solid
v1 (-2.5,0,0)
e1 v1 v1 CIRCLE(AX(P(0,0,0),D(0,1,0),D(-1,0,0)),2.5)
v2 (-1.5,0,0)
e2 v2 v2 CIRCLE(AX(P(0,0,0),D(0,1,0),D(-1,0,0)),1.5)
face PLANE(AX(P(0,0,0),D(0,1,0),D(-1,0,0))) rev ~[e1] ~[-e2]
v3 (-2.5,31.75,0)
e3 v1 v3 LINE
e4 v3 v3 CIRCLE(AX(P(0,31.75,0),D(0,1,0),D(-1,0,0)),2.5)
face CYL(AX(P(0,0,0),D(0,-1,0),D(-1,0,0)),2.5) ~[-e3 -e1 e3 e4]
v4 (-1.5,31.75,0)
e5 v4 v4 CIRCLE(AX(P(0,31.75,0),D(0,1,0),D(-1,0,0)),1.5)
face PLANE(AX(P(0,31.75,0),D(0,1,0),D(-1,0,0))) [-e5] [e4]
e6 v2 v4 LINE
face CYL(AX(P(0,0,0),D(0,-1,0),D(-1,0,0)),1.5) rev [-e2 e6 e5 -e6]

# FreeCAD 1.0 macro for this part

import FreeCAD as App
import Part
import Sketcher
Q = App.Units.Quantity

doc = App.newDocument("Part")
params = doc.addObject("Spreadsheet::Sheet", "Params")
for row, (alias, value) in enumerate([
    ("sketch1_diameter", "5 mm"),
    ("sketch1_diameter2", "3 mm"),
    ("pad1_length", "31.75 mm"),
], start=1):
    params.set(f"A{row}", alias)
    params.set(f"B{row}", "=" + value)
    params.setAlias(f"B{row}", alias)

body = doc.addObject("PartDesign::Body", "Body")

# Sketch on XZ plane
sketch1 = body.newObject("Sketcher::SketchObject", "Sketch")
sketch1.AttachmentSupport = (doc.getObject("XZ_Plane"), [""])
sketch1.MapMode = "FlatFace"
sketch1.addGeometry(Part.Circle(App.Vector(0, 0, 0), App.Vector(0, 0, 1), 2.5), False)
sketch1.addGeometry(Part.Circle(App.Vector(0, 0, 0), App.Vector(0, 0, 1), 1.5), False)
sketch1.addConstraint(Sketcher.Constraint("Coincident", 0, 3, -1, 1))
sketch1.addConstraint(Sketcher.Constraint("Coincident", 1, 3, -1, 1))
sketch1.addConstraint(Sketcher.Constraint("Diameter", 0, Q("5 mm")))
sketch1.addConstraint(Sketcher.Constraint("Diameter", 1, Q("3 mm")))
sketch1.setExpression("Constraints[2]", "Params.sketch1_diameter")
sketch1.setExpression("Constraints[3]", "Params.sketch1_diameter2")
pad1 = body.newObject("PartDesign::Pad", "Pad")
pad1.Profile = sketch1
pad1.setExpression("Length", "Params.pad1_length")
pad1.Reversed = True

doc.recompute()
